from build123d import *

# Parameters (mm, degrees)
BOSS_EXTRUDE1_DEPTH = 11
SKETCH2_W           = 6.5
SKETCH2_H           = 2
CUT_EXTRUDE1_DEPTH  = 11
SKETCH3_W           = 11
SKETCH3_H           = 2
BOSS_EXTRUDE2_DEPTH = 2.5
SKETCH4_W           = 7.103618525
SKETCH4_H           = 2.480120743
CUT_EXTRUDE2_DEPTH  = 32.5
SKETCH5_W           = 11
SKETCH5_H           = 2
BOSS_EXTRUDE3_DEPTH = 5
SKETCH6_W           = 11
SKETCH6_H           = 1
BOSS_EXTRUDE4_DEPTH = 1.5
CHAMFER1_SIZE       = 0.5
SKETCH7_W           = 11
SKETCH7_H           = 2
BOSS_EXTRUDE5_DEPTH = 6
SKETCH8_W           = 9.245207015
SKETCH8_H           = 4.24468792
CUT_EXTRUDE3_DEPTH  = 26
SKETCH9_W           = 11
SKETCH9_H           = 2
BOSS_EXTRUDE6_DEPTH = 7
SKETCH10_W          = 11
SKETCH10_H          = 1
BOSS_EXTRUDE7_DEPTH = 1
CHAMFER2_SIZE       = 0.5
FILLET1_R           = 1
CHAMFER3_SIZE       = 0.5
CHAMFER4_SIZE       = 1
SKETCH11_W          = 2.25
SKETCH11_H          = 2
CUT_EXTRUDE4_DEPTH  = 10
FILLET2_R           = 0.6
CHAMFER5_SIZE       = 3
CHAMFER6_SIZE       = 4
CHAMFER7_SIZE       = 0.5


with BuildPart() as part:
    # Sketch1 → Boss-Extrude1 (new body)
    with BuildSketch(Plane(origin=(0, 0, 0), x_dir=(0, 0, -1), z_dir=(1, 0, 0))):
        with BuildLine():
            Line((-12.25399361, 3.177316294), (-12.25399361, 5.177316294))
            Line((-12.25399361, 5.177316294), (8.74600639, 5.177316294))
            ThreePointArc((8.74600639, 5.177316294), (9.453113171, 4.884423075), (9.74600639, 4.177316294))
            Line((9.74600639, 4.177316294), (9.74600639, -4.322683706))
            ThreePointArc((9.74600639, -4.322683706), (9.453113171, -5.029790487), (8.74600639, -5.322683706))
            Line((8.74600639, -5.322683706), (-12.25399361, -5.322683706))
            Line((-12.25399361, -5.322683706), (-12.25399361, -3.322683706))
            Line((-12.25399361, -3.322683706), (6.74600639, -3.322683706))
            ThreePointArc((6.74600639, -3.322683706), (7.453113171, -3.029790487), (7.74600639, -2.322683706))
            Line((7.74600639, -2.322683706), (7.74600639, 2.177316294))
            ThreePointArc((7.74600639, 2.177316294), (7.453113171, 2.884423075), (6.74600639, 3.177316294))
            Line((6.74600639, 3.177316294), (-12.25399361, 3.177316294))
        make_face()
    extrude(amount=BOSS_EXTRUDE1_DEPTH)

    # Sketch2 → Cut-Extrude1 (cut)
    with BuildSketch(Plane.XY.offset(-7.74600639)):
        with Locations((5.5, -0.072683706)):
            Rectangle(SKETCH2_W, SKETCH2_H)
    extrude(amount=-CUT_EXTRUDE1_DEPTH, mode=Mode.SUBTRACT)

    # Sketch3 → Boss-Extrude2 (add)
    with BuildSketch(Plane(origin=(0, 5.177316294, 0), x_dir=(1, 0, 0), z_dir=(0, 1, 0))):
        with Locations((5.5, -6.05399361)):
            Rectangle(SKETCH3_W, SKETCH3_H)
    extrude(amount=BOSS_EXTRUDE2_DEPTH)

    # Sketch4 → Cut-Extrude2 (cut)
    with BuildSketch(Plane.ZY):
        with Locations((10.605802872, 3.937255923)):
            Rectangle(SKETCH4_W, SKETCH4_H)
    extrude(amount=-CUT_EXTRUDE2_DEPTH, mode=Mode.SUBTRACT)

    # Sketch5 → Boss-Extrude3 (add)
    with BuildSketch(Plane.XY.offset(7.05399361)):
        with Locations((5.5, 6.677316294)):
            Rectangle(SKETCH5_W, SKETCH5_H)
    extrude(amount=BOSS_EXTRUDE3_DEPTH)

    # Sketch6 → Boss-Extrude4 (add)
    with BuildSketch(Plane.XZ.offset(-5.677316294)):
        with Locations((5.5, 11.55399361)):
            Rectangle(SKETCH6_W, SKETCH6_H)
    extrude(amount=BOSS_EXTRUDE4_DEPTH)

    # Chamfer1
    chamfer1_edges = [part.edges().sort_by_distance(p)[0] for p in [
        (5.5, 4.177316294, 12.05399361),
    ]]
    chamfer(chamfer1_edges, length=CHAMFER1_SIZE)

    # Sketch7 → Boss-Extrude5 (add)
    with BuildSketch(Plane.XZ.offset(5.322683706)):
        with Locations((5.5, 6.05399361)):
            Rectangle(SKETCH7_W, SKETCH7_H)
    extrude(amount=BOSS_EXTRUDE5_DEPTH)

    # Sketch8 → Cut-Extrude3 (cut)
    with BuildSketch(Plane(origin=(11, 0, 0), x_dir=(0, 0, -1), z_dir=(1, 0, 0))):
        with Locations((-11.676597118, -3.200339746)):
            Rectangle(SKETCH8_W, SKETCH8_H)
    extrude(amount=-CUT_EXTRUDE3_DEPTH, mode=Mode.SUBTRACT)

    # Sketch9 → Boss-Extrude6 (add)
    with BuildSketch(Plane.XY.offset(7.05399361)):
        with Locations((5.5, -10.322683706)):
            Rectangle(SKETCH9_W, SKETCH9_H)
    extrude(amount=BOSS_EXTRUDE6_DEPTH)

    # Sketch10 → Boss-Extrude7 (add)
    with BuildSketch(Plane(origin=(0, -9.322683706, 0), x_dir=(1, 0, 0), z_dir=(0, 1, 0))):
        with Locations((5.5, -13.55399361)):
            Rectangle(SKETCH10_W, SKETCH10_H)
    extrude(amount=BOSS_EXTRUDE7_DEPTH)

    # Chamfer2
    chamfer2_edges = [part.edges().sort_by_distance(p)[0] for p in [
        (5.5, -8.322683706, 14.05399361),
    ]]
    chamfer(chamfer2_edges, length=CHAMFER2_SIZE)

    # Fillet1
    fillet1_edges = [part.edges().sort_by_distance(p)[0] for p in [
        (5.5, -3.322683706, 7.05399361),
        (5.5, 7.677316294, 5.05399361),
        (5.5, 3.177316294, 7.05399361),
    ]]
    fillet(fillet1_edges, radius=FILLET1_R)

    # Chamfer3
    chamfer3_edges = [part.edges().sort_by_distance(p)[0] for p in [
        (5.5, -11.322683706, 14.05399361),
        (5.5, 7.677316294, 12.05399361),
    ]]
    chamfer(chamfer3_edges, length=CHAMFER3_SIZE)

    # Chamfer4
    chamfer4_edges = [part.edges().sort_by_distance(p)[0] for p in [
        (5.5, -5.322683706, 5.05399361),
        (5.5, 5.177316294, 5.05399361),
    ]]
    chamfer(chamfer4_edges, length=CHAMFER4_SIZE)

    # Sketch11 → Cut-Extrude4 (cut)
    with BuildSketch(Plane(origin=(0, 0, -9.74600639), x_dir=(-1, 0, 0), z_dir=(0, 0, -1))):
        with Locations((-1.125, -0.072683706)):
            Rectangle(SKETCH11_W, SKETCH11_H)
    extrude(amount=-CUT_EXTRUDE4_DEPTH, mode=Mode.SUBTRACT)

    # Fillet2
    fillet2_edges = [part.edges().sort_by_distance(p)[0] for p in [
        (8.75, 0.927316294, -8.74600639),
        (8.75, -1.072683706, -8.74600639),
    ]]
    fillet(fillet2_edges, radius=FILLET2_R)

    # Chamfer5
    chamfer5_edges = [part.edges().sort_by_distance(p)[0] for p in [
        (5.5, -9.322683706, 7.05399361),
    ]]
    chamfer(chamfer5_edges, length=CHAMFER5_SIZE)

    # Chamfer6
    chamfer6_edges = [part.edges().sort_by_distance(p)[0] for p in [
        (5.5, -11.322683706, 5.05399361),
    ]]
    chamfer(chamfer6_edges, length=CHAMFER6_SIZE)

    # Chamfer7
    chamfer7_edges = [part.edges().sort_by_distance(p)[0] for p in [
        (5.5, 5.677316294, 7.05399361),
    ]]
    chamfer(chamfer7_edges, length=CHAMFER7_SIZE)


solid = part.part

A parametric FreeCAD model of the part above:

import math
import FreeCAD as App
import Part
import Sketcher
from FreeCAD import Vector


def edges_at(feature, points):
    """Names of the edges that pass closest to the given points."""
    edges = feature.Shape.Edges
    near = lambda p: min(range(len(edges)), key=lambda i: edges[i].distToShape(Part.Vertex(*p))[0])
    return sorted({f"Edge{near(p) + 1}" for p in points})


def add_polygon(sketch, points):
    """Adds a closed chain of lines whose ends are joined by coincident constraints."""
    first, n = sketch.GeometryCount, len(points)
    for a, b in zip(points, points[1:] + points[:1]):
        sketch.addGeometry(Part.LineSegment(App.Vector(*a, 0), App.Vector(*b, 0)), False)
    for i in range(n):
        sketch.addConstraint(Sketcher.Constraint("Coincident", first + i, 2, first + (i + 1) % n, 1))

doc = App.newDocument("Part")
params = doc.addObject("Spreadsheet::Sheet", "Params")
for row, (alias, value) in enumerate([
    ("sketch1_radius", "1 mm"),
    ("sketch1_width", "2 mm"),
    ("sketch1_height", "19 mm"),
    ("sketch1_height2", "21 mm"),
    ("sketch1_width2", "4.5 mm"),
    ("pad1_length", "11 mm"),
    ("sketch2_height", "2 mm"),
    ("sketch2_width", "6.5 mm"),
    ("pocket1_length", "11 mm"),
    ("sketch3_width", "11 mm"),
    ("sketch3_height", "2 mm"),
    ("pad2_length", "2.5 mm"),
    ("pocket2_length", "32.5 mm"),
    ("sketch5_width", "11 mm"),
    ("sketch5_height", "2 mm"),
    ("pad3_length", "5 mm"),
    ("sketch6_width", "11 mm"),
    ("sketch6_height", "1 mm"),
    ("pad4_length", "1.5 mm"),
    ("chamfer_size", "0.5 mm"),
    ("sketch7_width", "11 mm"),
    ("sketch7_height", "2 mm"),
    ("pad5_length", "6 mm"),
    ("pocket3_length", "26 mm"),
    ("sketch9_width", "11 mm"),
    ("sketch9_height", "2 mm"),
    ("pad6_length", "7 mm"),
    ("sketch10_width", "11 mm"),
    ("sketch10_height", "1 mm"),
    ("pad7_length", "1 mm"),
    ("chamfer2_size", "0.5 mm"),
    ("fillet_radius", "1 mm"),
    ("chamfer3_size", "0.5 mm"),
    ("chamfer4_size", "1 mm"),
    ("sketch11_height", "2 mm"),
    ("sketch11_width", "2.25 mm"),
    ("pocket4_length", "10 mm"),
    ("fillet2_radius", "0.6 mm"),
    ("chamfer5_size", "3 mm"),
    ("chamfer6_size", "4 mm"),
    ("chamfer7_size", "0.5 mm"),
], start=1):
    params.set(f"A{row}", alias)
    params.set(f"B{row}", "=" + value)
    params.setAlias(f"B{row}", alias)

body = doc.addObject("PartDesign::Body", "Body")

# Sketch on YZ plane
sketch1 = doc.addObject("Sketcher::SketchObject", "Sketch")
body.addObject(sketch1)
sketch1.AttachmentSupport = (doc.YZ_Plane, [""])
sketch1.MapMode = "FlatFace"
sketch1.addGeometry(Part.LineSegment(Vector(5.2, 12.3, 0), Vector(3.2, 12.3, 0)), False)
sketch1.addGeometry(Part.LineSegment(Vector(3.2, 12.3, 0), Vector(3.2, -6.7, 0)), False)
sketch1.addGeometry(Part.ArcOfCircle(Part.Circle(Vector(2.2, -6.7, 0), Vector(0, 0, 1), 1), math.radians(-90), math.radians(0)), False)
sketch1.addGeometry(Part.LineSegment(Vector(2.2, -7.7, 0), Vector(-2.3, -7.7, 0)), False)
sketch1.addGeometry(Part.ArcOfCircle(Part.Circle(Vector(-2.3, -6.7, 0), Vector(0, 0, 1), 1), math.radians(-180), math.radians(-90)), False)
sketch1.addGeometry(Part.LineSegment(Vector(-3.3, -6.7, 0), Vector(-3.3, 12.3, 0)), False)
sketch1.addGeometry(Part.LineSegment(Vector(-3.3, 12.3, 0), Vector(-5.3, 12.3, 0)), False)
sketch1.addGeometry(Part.LineSegment(Vector(-5.3, 12.3, 0), Vector(-5.3, -8.7, 0)), False)
sketch1.addGeometry(Part.ArcOfCircle(Part.Circle(Vector(-4.3, -8.7, 0), Vector(0, 0, 1), 1), math.radians(-180), math.radians(-90)), False)
sketch1.addGeometry(Part.LineSegment(Vector(-4.3, -9.7, 0), Vector(4.2, -9.7, 0)), False)
sketch1.addGeometry(Part.ArcOfCircle(Part.Circle(Vector(4.2, -8.7, 0), Vector(0, 0, 1), 1), math.radians(-90), math.radians(0)), False)
sketch1.addGeometry(Part.LineSegment(Vector(5.2, -8.7, 0), Vector(5.2, 12.3, 0)), False)
sketch1.addConstraint(Sketcher.Constraint("Coincident", 0, 2, 1, 1))
sketch1.addConstraint(Sketcher.Constraint("Tangent", 1, 2, 2, 2))
sketch1.addConstraint(Sketcher.Constraint("Tangent", 2, 1, 3, 1))
sketch1.addConstraint(Sketcher.Constraint("Tangent", 3, 2, 4, 2))
sketch1.addConstraint(Sketcher.Constraint("Tangent", 4, 1, 5, 1))
sketch1.addConstraint(Sketcher.Constraint("Coincident", 5, 2, 6, 1))
sketch1.addConstraint(Sketcher.Constraint("Coincident", 6, 2, 7, 1))
sketch1.addConstraint(Sketcher.Constraint("Tangent", 7, 2, 8, 1))
sketch1.addConstraint(Sketcher.Constraint("Tangent", 8, 2, 9, 1))
sketch1.addConstraint(Sketcher.Constraint("Tangent", 9, 2, 10, 1))
sketch1.addConstraint(Sketcher.Constraint("Tangent", 10, 2, 11, 1))
sketch1.addConstraint(Sketcher.Constraint("Coincident", 11, 2, 0, 1))
sketch1.addConstraint(Sketcher.Constraint("Horizontal", 0))
sketch1.addConstraint(Sketcher.Constraint("Vertical", 1))
sketch1.addConstraint(Sketcher.Constraint("Horizontal", 3))
sketch1.addConstraint(Sketcher.Constraint("Vertical", 5))
sketch1.addConstraint(Sketcher.Constraint("Horizontal", 6))
sketch1.addConstraint(Sketcher.Constraint("Vertical", 7))
sketch1.addConstraint(Sketcher.Constraint("Horizontal", 9))
sketch1.addConstraint(Sketcher.Constraint("Vertical", 11))
sketch1.addConstraint(Sketcher.Constraint("Equal", 2, 4))
sketch1.addConstraint(Sketcher.Constraint("Equal", 4, 8))
sketch1.addConstraint(Sketcher.Constraint("Equal", 8, 10))
sketch1.addConstraint(Sketcher.Constraint("Horizontal", 0, 2, 5, 2))
sketch1.addConstraint(Sketcher.Constraint("Equal", 0, 6))
sketch1.addConstraint(Sketcher.Constraint("Radius", 2, 1.0))
sketch1.addConstraint(Sketcher.Constraint("DistanceX", 0, 2, 0, 1, 2.0))
sketch1.addConstraint(Sketcher.Constraint("DistanceY", 1, 2, 1, 1, 19.0))
sketch1.addConstraint(Sketcher.Constraint("DistanceY", 7, 2, 7, 1, 21.0))
sketch1.addConstraint(Sketcher.Constraint("DistanceX", 3, 2, 3, 1, 4.5))
sketch1.addConstraint(Sketcher.Constraint("DistanceX", -1, 1, 2, 3, 2.177316))
sketch1.addConstraint(Sketcher.Constraint("DistanceY", 2, 3, -1, 1, 6.746006))
sketch1.setExpression("Constraints[25]", "Params.sketch1_radius")
sketch1.setExpression("Constraints[26]", "Params.sketch1_width")
sketch1.setExpression("Constraints[27]", "Params.sketch1_height")
sketch1.setExpression("Constraints[28]", "Params.sketch1_height2")
sketch1.setExpression("Constraints[29]", "Params.sketch1_width2")
pad1 = doc.addObject("PartDesign::Pad", "Pad")
body.addObject(pad1)
pad1.Profile = sketch1
pad1.setExpression("Length", "Params.pad1_length")

# Sketch on XY plane
sketch2 = doc.addObject("Sketcher::SketchObject", "Sketch001")
body.addObject(sketch2)
sketch2.AttachmentSupport = (doc.XY_Plane, [""])
sketch2.MapMode = "FlatFace"
sketch2.AttachmentOffset = App.Placement(Vector(0, 0, -7.746006), App.Rotation())
add_polygon(sketch2, [(2.2, 0.9), (2.2, -1.1), (8.8, -1.1), (8.8, 0.9)])  # lines 0-3
sketch2.addConstraint(Sketcher.Constraint("Vertical", 0))
sketch2.addConstraint(Sketcher.Constraint("Horizontal", 1))
sketch2.addConstraint(Sketcher.Constraint("Vertical", 2))
sketch2.addConstraint(Sketcher.Constraint("Horizontal", 3))
sketch2.addConstraint(Sketcher.Constraint("DistanceY", 0, 2, 0, 1, 2.0))
sketch2.addConstraint(Sketcher.Constraint("DistanceX", 1, 1, 1, 2, 6.5))
sketch2.addConstraint(Sketcher.Constraint("DistanceX", -1, 1, 0, 2, 2.25))
sketch2.addConstraint(Sketcher.Constraint("DistanceY", 0, 2, -1, 1, 1.072684))
sketch2.setExpression("Constraints[8]", "Params.sketch2_height")
sketch2.setExpression("Constraints[9]", "Params.sketch2_width")
pocket1 = doc.addObject("PartDesign::Pocket", "Pocket")
body.addObject(pocket1)
pocket1.Profile = sketch2
pocket1.setExpression("Length", "Params.pocket1_length")

# Sketch on XZ plane
sketch3 = doc.addObject("Sketcher::SketchObject", "Sketch002")
body.addObject(sketch3)
sketch3.AttachmentSupport = (doc.XZ_Plane, [""])
sketch3.MapMode = "FlatFace"
sketch3.AttachmentOffset = App.Placement(Vector(0, 0, -5.177316), App.Rotation())
add_polygon(sketch3, [(0, 5.1), (0, 7.1), (11, 7.1), (11, 5.1)])  # lines 0-3
sketch3.addConstraint(Sketcher.Constraint("Vertical", 0))
sketch3.addConstraint(Sketcher.Constraint("Horizontal", 1))
sketch3.addConstraint(Sketcher.Constraint("Vertical", 2))
sketch3.addConstraint(Sketcher.Constraint("Horizontal", 3))
sketch3.addConstraint(Sketcher.Constraint("PointOnObject", 0, 2, -2))
sketch3.addConstraint(Sketcher.Constraint("DistanceX", 1, 1, 1, 2, 11.0))
sketch3.addConstraint(Sketcher.Constraint("DistanceY", 0, 1, 0, 2, 2.0))
sketch3.addConstraint(Sketcher.Constraint("DistanceY", -1, 1, 0, 2, 7.053994))
sketch3.setExpression("Constraints[9]", "Params.sketch3_width")
sketch3.setExpression("Constraints[10]", "Params.sketch3_height")
pad2 = doc.addObject("PartDesign::Pad", "Pad001")
body.addObject(pad2)
pad2.Profile = sketch3
pad2.setExpression("Length", "Params.pad2_length")
pad2.Reversed = True

# Sketch on YZ plane
sketch4 = doc.addObject("Sketcher::SketchObject", "Sketch003")
body.addObject(sketch4)
sketch4.AttachmentSupport = (doc.YZ_Plane, [""])
sketch4.MapMode = "FlatFace"
add_polygon(sketch4, [(5.2, 7.1), (2.7, 7.1), (2.7, 14.2), (5.2, 14.2)])  # lines 0-3
sketch4.addConstraint(Sketcher.Constraint("Horizontal", 0))
sketch4.addConstraint(Sketcher.Constraint("Vertical", 1))
sketch4.addConstraint(Sketcher.Constraint("Horizontal", 2))
sketch4.addConstraint(Sketcher.Constraint("Vertical", 3))
sketch4.addConstraint(Sketcher.Constraint("DistanceX", 0, 2, 0, 1, 2.480121))
sketch4.addConstraint(Sketcher.Constraint("DistanceY", 1, 1, 1, 2, 7.103619))
sketch4.addConstraint(Sketcher.Constraint("DistanceX", -1, 1, 0, 2, 2.697196))
sketch4.addConstraint(Sketcher.Constraint("DistanceY", -1, 1, 0, 2, 7.053994))
pocket2 = doc.addObject("PartDesign::Pocket", "Pocket001")
body.addObject(pocket2)
pocket2.Profile = sketch4
pocket2.setExpression("Length", "Params.pocket2_length")
pocket2.Reversed = True

# Sketch on XY plane
sketch5 = doc.addObject("Sketcher::SketchObject", "Sketch004")
body.addObject(sketch5)
sketch5.AttachmentSupport = (doc.XY_Plane, [""])
sketch5.MapMode = "FlatFace"
sketch5.AttachmentOffset = App.Placement(Vector(0, 0, 7.053994), App.Rotation())
add_polygon(sketch5, [(0, 7.7), (0, 5.7), (11, 5.7), (11, 7.7)])  # lines 0-3
sketch5.addConstraint(Sketcher.Constraint("Vertical", 0))
sketch5.addConstraint(Sketcher.Constraint("Horizontal", 1))
sketch5.addConstraint(Sketcher.Constraint("Vertical", 2))
sketch5.addConstraint(Sketcher.Constraint("Horizontal", 3))
sketch5.addConstraint(Sketcher.Constraint("PointOnObject", 0, 2, -2))
sketch5.addConstraint(Sketcher.Constraint("DistanceX", 1, 1, 1, 2, 11.0))
sketch5.addConstraint(Sketcher.Constraint("DistanceY", 0, 2, 0, 1, 2.0))
sketch5.addConstraint(Sketcher.Constraint("DistanceY", -1, 1, 0, 2, 5.677316))
sketch5.setExpression("Constraints[9]", "Params.sketch5_width")
sketch5.setExpression("Constraints[10]", "Params.sketch5_height")
pad3 = doc.addObject("PartDesign::Pad", "Pad002")
body.addObject(pad3)
pad3.Profile = sketch5
pad3.setExpression("Length", "Params.pad3_length")

# Sketch on XZ plane
sketch6 = doc.addObject("Sketcher::SketchObject", "Sketch005")
body.addObject(sketch6)
sketch6.AttachmentSupport = (doc.XZ_Plane, [""])
sketch6.MapMode = "FlatFace"
sketch6.AttachmentOffset = App.Placement(Vector(0, 0, -5.677316), App.Rotation())
add_polygon(sketch6, [(0, 12.1), (0, 11.1), (11, 11.1), (11, 12.1)])  # lines 0-3
sketch6.addConstraint(Sketcher.Constraint("Vertical", 0))
sketch6.addConstraint(Sketcher.Constraint("Horizontal", 1))
sketch6.addConstraint(Sketcher.Constraint("Vertical", 2))
sketch6.addConstraint(Sketcher.Constraint("Horizontal", 3))
sketch6.addConstraint(Sketcher.Constraint("PointOnObject", 0, 2, -2))
sketch6.addConstraint(Sketcher.Constraint("DistanceX", 1, 1, 1, 2, 11.0))
sketch6.addConstraint(Sketcher.Constraint("DistanceY", 0, 2, 0, 1, 1.0))
sketch6.addConstraint(Sketcher.Constraint("DistanceY", -1, 1, 0, 2, 11.053994))
sketch6.setExpression("Constraints[9]", "Params.sketch6_width")
sketch6.setExpression("Constraints[10]", "Params.sketch6_height")
pad4 = doc.addObject("PartDesign::Pad", "Pad003")
body.addObject(pad4)
pad4.Profile = sketch6
pad4.setExpression("Length", "Params.pad4_length")
doc.recompute()

chamfer = doc.addObject("PartDesign::Chamfer", "Chamfer")
body.addObject(chamfer)
chamfer.Base = (pad4, edges_at(pad4, [(5.5, 4.177, 12.054)]))
chamfer.setExpression("Size", "Params.chamfer_size")

# Sketch on XZ plane
sketch7 = doc.addObject("Sketcher::SketchObject", "Sketch006")
body.addObject(sketch7)
sketch7.AttachmentSupport = (doc.XZ_Plane, [""])
sketch7.MapMode = "FlatFace"
sketch7.AttachmentOffset = App.Placement(Vector(0, 0, 5.322684), App.Rotation())
add_polygon(sketch7, [(0, 7.1), (0, 5.1), (11, 5.1), (11, 7.1)])  # lines 0-3
sketch7.addConstraint(Sketcher.Constraint("Vertical", 0))
sketch7.addConstraint(Sketcher.Constraint("Horizontal", 1))
sketch7.addConstraint(Sketcher.Constraint("Vertical", 2))
sketch7.addConstraint(Sketcher.Constraint("Horizontal", 3))
sketch7.addConstraint(Sketcher.Constraint("PointOnObject", 0, 2, -2))
sketch7.addConstraint(Sketcher.Constraint("DistanceX", 1, 1, 1, 2, 11.0))
sketch7.addConstraint(Sketcher.Constraint("DistanceY", 0, 2, 0, 1, 2.0))
sketch7.addConstraint(Sketcher.Constraint("DistanceY", -1, 1, 0, 2, 5.053994))
sketch7.setExpression("Constraints[9]", "Params.sketch7_width")
sketch7.setExpression("Constraints[10]", "Params.sketch7_height")
pad5 = doc.addObject("PartDesign::Pad", "Pad004")
body.addObject(pad5)
pad5.Profile = sketch7
pad5.setExpression("Length", "Params.pad5_length")

# Sketch on YZ plane
sketch8 = doc.addObject("Sketcher::SketchObject", "Sketch007")
body.addObject(sketch8)
sketch8.AttachmentSupport = (doc.YZ_Plane, [""])
sketch8.MapMode = "FlatFace"
sketch8.AttachmentOffset = App.Placement(Vector(0, 0, 11), App.Rotation())
add_polygon(sketch8, [(-1.1, 16.3), (-5.3, 16.3), (-5.3, 7.1), (-1.1, 7.1)])  # lines 0-3
sketch8.addConstraint(Sketcher.Constraint("Horizontal", 0))
sketch8.addConstraint(Sketcher.Constraint("Vertical", 1))
sketch8.addConstraint(Sketcher.Constraint("Horizontal", 2))
sketch8.addConstraint(Sketcher.Constraint("Vertical", 3))
sketch8.addConstraint(Sketcher.Constraint("DistanceY", -1, 1, 0, 2, 16.299201))
sketch8.addConstraint(Sketcher.Constraint("DistanceX", 0, 2, 0, 1, 4.244688))
sketch8.addConstraint(Sketcher.Constraint("DistanceY", 1, 2, 1, 1, 9.245207))
sketch8.addConstraint(Sketcher.Constraint("DistanceX", 0, 2, -1, 1, 5.322684))
pocket3 = doc.addObject("PartDesign::Pocket", "Pocket002")
body.addObject(pocket3)
pocket3.Profile = sketch8
pocket3.setExpression("Length", "Params.pocket3_length")

# Sketch on XY plane
sketch9 = doc.addObject("Sketcher::SketchObject", "Sketch008")
body.addObject(sketch9)
sketch9.AttachmentSupport = (doc.XY_Plane, [""])
sketch9.MapMode = "FlatFace"
sketch9.AttachmentOffset = App.Placement(Vector(0, 0, 7.053994), App.Rotation())
add_polygon(sketch9, [(0, -9.3), (0, -11.3), (11, -11.3), (11, -9.3)])  # lines 0-3
sketch9.addConstraint(Sketcher.Constraint("Vertical", 0))
sketch9.addConstraint(Sketcher.Constraint("Horizontal", 1))
sketch9.addConstraint(Sketcher.Constraint("Vertical", 2))
sketch9.addConstraint(Sketcher.Constraint("Horizontal", 3))
sketch9.addConstraint(Sketcher.Constraint("PointOnObject", 0, 2, -2))
sketch9.addConstraint(Sketcher.Constraint("DistanceX", 1, 1, 1, 2, 11.0))
sketch9.addConstraint(Sketcher.Constraint("DistanceY", 0, 2, 0, 1, 2.0))
sketch9.addConstraint(Sketcher.Constraint("DistanceY", 0, 2, -1, 1, 11.322684))
sketch9.setExpression("Constraints[9]", "Params.sketch9_width")
sketch9.setExpression("Constraints[10]", "Params.sketch9_height")
pad6 = doc.addObject("PartDesign::Pad", "Pad005")
body.addObject(pad6)
pad6.Profile = sketch9
pad6.setExpression("Length", "Params.pad6_length")

# Sketch on XZ plane
sketch10 = doc.addObject("Sketcher::SketchObject", "Sketch009")
body.addObject(sketch10)
sketch10.AttachmentSupport = (doc.XZ_Plane, [""])
sketch10.MapMode = "FlatFace"
sketch10.AttachmentOffset = App.Placement(Vector(0, 0, 9.322684), App.Rotation())
add_polygon(sketch10, [(0, 13.1), (0, 14.1), (11, 14.1), (11, 13.1)])  # lines 0-3
sketch10.addConstraint(Sketcher.Constraint("Vertical", 0))
sketch10.addConstraint(Sketcher.Constraint("Horizontal", 1))
sketch10.addConstraint(Sketcher.Constraint("Vertical", 2))
sketch10.addConstraint(Sketcher.Constraint("Horizontal", 3))
sketch10.addConstraint(Sketcher.Constraint("PointOnObject", 0, 2, -2))
sketch10.addConstraint(Sketcher.Constraint("DistanceX", 1, 1, 1, 2, 11.0))
sketch10.addConstraint(Sketcher.Constraint("DistanceY", 0, 1, 0, 2, 1.0))
sketch10.addConstraint(Sketcher.Constraint("DistanceY", -1, 1, 0, 2, 14.053994))
sketch10.setExpression("Constraints[9]", "Params.sketch10_width")
sketch10.setExpression("Constraints[10]", "Params.sketch10_height")
pad7 = doc.addObject("PartDesign::Pad", "Pad006")
body.addObject(pad7)
pad7.Profile = sketch10
pad7.setExpression("Length", "Params.pad7_length")
pad7.Reversed = True
doc.recompute()

chamfer2 = doc.addObject("PartDesign::Chamfer", "Chamfer001")
body.addObject(chamfer2)
chamfer2.Base = (pad7, edges_at(pad7, [(5.5, -8.323, 14.054)]))
chamfer2.setExpression("Size", "Params.chamfer2_size")
doc.recompute()

fillet = doc.addObject("PartDesign::Fillet", "Fillet")
body.addObject(fillet)
fillet.Base = (chamfer2, edges_at(chamfer2, [(5.5, -3.323, 7.054), (5.5, 7.677, 5.054), (5.5, 3.177, 7.054)]))
fillet.setExpression("Radius", "Params.fillet_radius")
doc.recompute()

chamfer3 = doc.addObject("PartDesign::Chamfer", "Chamfer002")
body.addObject(chamfer3)
chamfer3.Base = (fillet, edges_at(fillet, [(5.5, -11.323, 14.054), (5.5, 7.677, 12.054)]))
chamfer3.setExpression("Size", "Params.chamfer3_size")
doc.recompute()

chamfer4 = doc.addObject("PartDesign::Chamfer", "Chamfer003")
body.addObject(chamfer4)
chamfer4.Base = (chamfer3, edges_at(chamfer3, [(5.5, -5.323, 5.054), (5.5, 5.177, 5.054)]))
chamfer4.setExpression("Size", "Params.chamfer4_size")

# Sketch on XY plane
sketch11 = doc.addObject("Sketcher::SketchObject", "Sketch010")
body.addObject(sketch11)
sketch11.AttachmentSupport = (doc.XY_Plane, [""])
sketch11.MapMode = "FlatFace"
sketch11.AttachmentOffset = App.Placement(Vector(0, 0, -9.746006), App.Rotation())
add_polygon(sketch11, [(2.2, 0.9), (2.2, -1.1), (0, -1.1), (0, 0.9)])  # lines 0-3
sketch11.addConstraint(Sketcher.Constraint("Vertical", 0))
sketch11.addConstraint(Sketcher.Constraint("Horizontal", 1))
sketch11.addConstraint(Sketcher.Constraint("Vertical", 2))
sketch11.addConstraint(Sketcher.Constraint("Horizontal", 3))
sketch11.addConstraint(Sketcher.Constraint("PointOnObject", 1, 2, -2))
sketch11.addConstraint(Sketcher.Constraint("DistanceY", 0, 2, 0, 1, 2.0))
sketch11.addConstraint(Sketcher.Constraint("DistanceX", 1, 2, 1, 1, 2.25))
sketch11.addConstraint(Sketcher.Constraint("DistanceY", 0, 2, -1, 1, 1.072684))
sketch11.setExpression("Constraints[9]", "Params.sketch11_height")
sketch11.setExpression("Constraints[10]", "Params.sketch11_width")
pocket4 = doc.addObject("PartDesign::Pocket", "Pocket003")
body.addObject(pocket4)
pocket4.Profile = sketch11
pocket4.setExpression("Length", "Params.pocket4_length")
pocket4.Reversed = True
doc.recompute()

fillet2 = doc.addObject("PartDesign::Fillet", "Fillet001")
body.addObject(fillet2)
fillet2.Base = (pocket4, edges_at(pocket4, [(8.75, 0.927, -8.746), (8.75, -1.073, -8.746)]))
fillet2.setExpression("Radius", "Params.fillet2_radius")
doc.recompute()

chamfer5 = doc.addObject("PartDesign::Chamfer", "Chamfer004")
body.addObject(chamfer5)
chamfer5.Base = (fillet2, edges_at(fillet2, [(5.5, -9.323, 7.054)]))
chamfer5.setExpression("Size", "Params.chamfer5_size")
doc.recompute()

chamfer6 = doc.addObject("PartDesign::Chamfer", "Chamfer005")
body.addObject(chamfer6)
chamfer6.Base = (chamfer5, edges_at(chamfer5, [(5.5, -11.323, 5.054)]))
chamfer6.setExpression("Size", "Params.chamfer6_size")
doc.recompute()

chamfer7 = doc.addObject("PartDesign::Chamfer", "Chamfer006")
body.addObject(chamfer7)
chamfer7.Base = (chamfer6, edges_at(chamfer6, [(5.5, 5.677, 7.054)]))
chamfer7.setExpression("Size", "Params.chamfer7_size")

doc.recompute()
